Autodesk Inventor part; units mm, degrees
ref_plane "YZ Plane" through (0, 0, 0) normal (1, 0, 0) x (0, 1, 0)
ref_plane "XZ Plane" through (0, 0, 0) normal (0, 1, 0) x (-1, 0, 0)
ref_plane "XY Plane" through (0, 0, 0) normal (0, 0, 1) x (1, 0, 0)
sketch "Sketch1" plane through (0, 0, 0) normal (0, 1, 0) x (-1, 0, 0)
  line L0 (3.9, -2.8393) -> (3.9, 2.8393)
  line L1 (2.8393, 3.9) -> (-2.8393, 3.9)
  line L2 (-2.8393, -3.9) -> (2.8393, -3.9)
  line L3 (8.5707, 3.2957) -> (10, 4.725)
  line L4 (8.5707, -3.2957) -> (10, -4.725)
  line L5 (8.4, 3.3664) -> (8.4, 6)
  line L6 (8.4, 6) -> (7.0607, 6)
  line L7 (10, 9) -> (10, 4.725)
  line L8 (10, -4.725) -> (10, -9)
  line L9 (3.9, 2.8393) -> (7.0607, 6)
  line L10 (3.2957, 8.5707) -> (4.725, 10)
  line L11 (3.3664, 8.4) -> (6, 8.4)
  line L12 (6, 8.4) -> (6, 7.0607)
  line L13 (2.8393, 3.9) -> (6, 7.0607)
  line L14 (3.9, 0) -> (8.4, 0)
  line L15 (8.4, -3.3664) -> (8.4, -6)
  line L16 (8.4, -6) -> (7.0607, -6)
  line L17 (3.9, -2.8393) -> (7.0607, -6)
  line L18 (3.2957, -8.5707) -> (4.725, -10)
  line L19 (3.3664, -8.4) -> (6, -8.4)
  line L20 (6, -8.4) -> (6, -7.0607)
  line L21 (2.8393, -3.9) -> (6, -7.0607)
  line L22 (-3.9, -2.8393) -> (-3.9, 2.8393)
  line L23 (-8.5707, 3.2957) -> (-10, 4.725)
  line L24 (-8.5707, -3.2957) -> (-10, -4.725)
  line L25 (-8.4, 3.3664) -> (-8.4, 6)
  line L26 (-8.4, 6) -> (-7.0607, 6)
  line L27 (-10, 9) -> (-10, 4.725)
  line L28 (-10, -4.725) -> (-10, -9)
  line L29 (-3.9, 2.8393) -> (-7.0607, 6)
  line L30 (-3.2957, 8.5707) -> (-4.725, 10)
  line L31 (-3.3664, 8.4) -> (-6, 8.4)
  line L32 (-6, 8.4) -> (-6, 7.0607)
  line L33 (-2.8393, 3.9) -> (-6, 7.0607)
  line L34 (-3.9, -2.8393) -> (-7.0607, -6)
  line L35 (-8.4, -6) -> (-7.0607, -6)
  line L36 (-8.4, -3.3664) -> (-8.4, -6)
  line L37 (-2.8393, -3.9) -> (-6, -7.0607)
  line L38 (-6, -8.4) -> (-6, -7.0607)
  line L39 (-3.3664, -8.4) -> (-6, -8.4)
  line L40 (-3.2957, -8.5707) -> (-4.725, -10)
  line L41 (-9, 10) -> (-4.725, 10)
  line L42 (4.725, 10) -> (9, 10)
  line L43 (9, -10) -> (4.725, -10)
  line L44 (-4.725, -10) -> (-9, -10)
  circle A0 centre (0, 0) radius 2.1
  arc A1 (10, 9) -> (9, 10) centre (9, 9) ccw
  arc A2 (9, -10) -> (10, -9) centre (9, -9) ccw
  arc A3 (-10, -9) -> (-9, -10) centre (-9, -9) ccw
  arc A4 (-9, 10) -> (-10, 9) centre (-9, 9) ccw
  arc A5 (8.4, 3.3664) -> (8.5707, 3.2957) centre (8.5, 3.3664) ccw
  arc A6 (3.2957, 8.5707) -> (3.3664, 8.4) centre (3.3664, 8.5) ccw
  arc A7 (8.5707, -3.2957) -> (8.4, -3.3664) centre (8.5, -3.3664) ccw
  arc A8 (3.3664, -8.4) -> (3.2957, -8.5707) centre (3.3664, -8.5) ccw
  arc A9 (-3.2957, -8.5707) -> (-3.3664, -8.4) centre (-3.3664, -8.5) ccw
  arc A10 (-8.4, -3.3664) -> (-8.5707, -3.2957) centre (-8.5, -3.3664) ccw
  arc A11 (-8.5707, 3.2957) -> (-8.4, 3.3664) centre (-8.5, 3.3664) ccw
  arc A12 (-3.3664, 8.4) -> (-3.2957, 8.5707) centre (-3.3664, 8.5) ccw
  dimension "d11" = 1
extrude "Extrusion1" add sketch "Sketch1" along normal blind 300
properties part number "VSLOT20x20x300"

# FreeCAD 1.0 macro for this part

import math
import FreeCAD as App
import Part
import Sketcher
Q = App.Units.Quantity

doc = App.newDocument("Part")
params = doc.addObject("Spreadsheet::Sheet", "Params")
for row, (alias, value) in enumerate([
    ("sketch1_radius", "1 mm"),
    ("sketch1_diameter", "4.2 mm"),
    ("sketch1_radius2", "0.1 mm"),
    ("sketch1_length", "4.47 mm"),
    ("pad1_length", "300 mm"),
], start=1):
    params.set(f"A{row}", alias)
    params.set(f"B{row}", "=" + value)
    params.setAlias(f"B{row}", alias)

body = doc.addObject("PartDesign::Body", "Body")

# Sketch on XZ plane
sketch1 = body.newObject("Sketcher::SketchObject", "Sketch")
sketch1.AttachmentSupport = (doc.getObject("XZ_Plane"), [""])
sketch1.MapMode = "FlatFace"
sketch1.addGeometry(Part.LineSegment(App.Vector(-7.0607, -6, 0), App.Vector(-3.9, -2.8393, 0)), False)
sketch1.addGeometry(Part.LineSegment(App.Vector(-3.9, -2.8393, 0), App.Vector(-3.9, 2.8393, 0)), False)
sketch1.addGeometry(Part.LineSegment(App.Vector(-3.9, 2.8393, 0), App.Vector(-7.0607, 6, 0)), False)
sketch1.addGeometry(Part.LineSegment(App.Vector(-7.0607, 6, 0), App.Vector(-8.4, 6, 0)), False)
sketch1.addGeometry(Part.LineSegment(App.Vector(-8.4, 6, 0), App.Vector(-8.4, 3.3664, 0)), False)
sketch1.addGeometry(Part.ArcOfCircle(Part.Circle(App.Vector(-8.5, 3.3664, 0), App.Vector(0, 0, 1), 0.1), math.radians(-135), math.radians(0)), False)
sketch1.addGeometry(Part.LineSegment(App.Vector(-8.5707, 3.2957, 0), App.Vector(-10, 4.725, 0)), False)
sketch1.addGeometry(Part.LineSegment(App.Vector(-10, 4.725, 0), App.Vector(-10, 9, 0)), False)
sketch1.addGeometry(Part.ArcOfCircle(Part.Circle(App.Vector(-9, 9, 0), App.Vector(0, 0, 1), 1), math.radians(90), math.radians(180)), False)
sketch1.addGeometry(Part.LineSegment(App.Vector(-9, 10, 0), App.Vector(-4.725, 10, 0)), False)
sketch1.addGeometry(Part.LineSegment(App.Vector(-4.725, 10, 0), App.Vector(-3.2957, 8.5707, 0)), False)
sketch1.addGeometry(Part.ArcOfCircle(Part.Circle(App.Vector(-3.3664, 8.5, 0), App.Vector(0, 0, 1), 0.099985), math.radians(-90), math.radians(45)), False)
sketch1.addGeometry(Part.LineSegment(App.Vector(-3.3664, 8.4, 0), App.Vector(-6, 8.4, 0)), False)
sketch1.addGeometry(Part.LineSegment(App.Vector(-6, 8.4, 0), App.Vector(-6, 7.0607, 0)), False)
sketch1.addGeometry(Part.LineSegment(App.Vector(-6, 7.0607, 0), App.Vector(-2.8393, 3.9, 0)), False)
sketch1.addGeometry(Part.LineSegment(App.Vector(-2.8393, 3.9, 0), App.Vector(2.8393, 3.9, 0)), False)
sketch1.addGeometry(Part.LineSegment(App.Vector(2.8393, 3.9, 0), App.Vector(6, 7.0607, 0)), False)
sketch1.addGeometry(Part.LineSegment(App.Vector(6, 7.0607, 0), App.Vector(6, 8.4, 0)), False)
sketch1.addGeometry(Part.LineSegment(App.Vector(6, 8.4, 0), App.Vector(3.3664, 8.4, 0)), False)
sketch1.addGeometry(Part.ArcOfCircle(Part.Circle(App.Vector(3.3664, 8.5, 0), App.Vector(0, 0, 1), 0.1), math.radians(135), math.radians(270)), False)
sketch1.addGeometry(Part.LineSegment(App.Vector(3.2957, 8.5707, 0), App.Vector(4.725, 10, 0)), False)
sketch1.addGeometry(Part.LineSegment(App.Vector(4.725, 10, 0), App.Vector(9, 10, 0)), False)
sketch1.addGeometry(Part.ArcOfCircle(Part.Circle(App.Vector(9, 9, 0), App.Vector(0, 0, 1), 1), math.radians(0), math.radians(90)), False)
sketch1.addGeometry(Part.LineSegment(App.Vector(10, 9, 0), App.Vector(10, 4.725, 0)), False)
sketch1.addGeometry(Part.LineSegment(App.Vector(10, 4.725, 0), App.Vector(8.5707, 3.2957, 0)), False)
sketch1.addGeometry(Part.ArcOfCircle(Part.Circle(App.Vector(8.5, 3.3664, 0), App.Vector(0, 0, 1), 0.099985), math.radians(180), math.radians(315)), False)
sketch1.addGeometry(Part.LineSegment(App.Vector(8.4, 3.3664, 0), App.Vector(8.4, 6, 0)), False)
sketch1.addGeometry(Part.LineSegment(App.Vector(8.4, 6, 0), App.Vector(7.0607, 6, 0)), False)
sketch1.addGeometry(Part.LineSegment(App.Vector(7.0607, 6, 0), App.Vector(3.9, 2.8393, 0)), False)
sketch1.addGeometry(Part.LineSegment(App.Vector(3.9, 2.8393, 0), App.Vector(3.9, -2.8393, 0)), False)
sketch1.addGeometry(Part.LineSegment(App.Vector(3.9, -2.8393, 0), App.Vector(7.0607, -6, 0)), False)
sketch1.addGeometry(Part.LineSegment(App.Vector(7.0607, -6, 0), App.Vector(8.4, -6, 0)), False)
sketch1.addGeometry(Part.LineSegment(App.Vector(8.4, -6, 0), App.Vector(8.4, -3.3664, 0)), False)
sketch1.addGeometry(Part.ArcOfCircle(Part.Circle(App.Vector(8.5, -3.3664, 0), App.Vector(0, 0, 1), 0.1), math.radians(45), math.radians(180)), False)
sketch1.addGeometry(Part.LineSegment(App.Vector(8.5707, -3.2957, 0), App.Vector(10, -4.725, 0)), False)
sketch1.addGeometry(Part.LineSegment(App.Vector(10, -4.725, 0), App.Vector(10, -9, 0)), False)
sketch1.addGeometry(Part.ArcOfCircle(Part.Circle(App.Vector(9, -9, 0), App.Vector(0, 0, 1), 1), math.radians(-90), math.radians(0)), False)
sketch1.addGeometry(Part.LineSegment(App.Vector(9, -10, 0), App.Vector(4.725, -10, 0)), False)
sketch1.addGeometry(Part.LineSegment(App.Vector(4.725, -10, 0), App.Vector(3.2957, -8.5707, 0)), False)
sketch1.addGeometry(Part.ArcOfCircle(Part.Circle(App.Vector(3.3664, -8.5, 0), App.Vector(0, 0, 1), 0.099985), math.radians(90), math.radians(225)), False)
sketch1.addGeometry(Part.LineSegment(App.Vector(3.3664, -8.4, 0), App.Vector(6, -8.4, 0)), False)
sketch1.addGeometry(Part.LineSegment(App.Vector(6, -8.4, 0), App.Vector(6, -7.0607, 0)), False)
sketch1.addGeometry(Part.LineSegment(App.Vector(6, -7.0607, 0), App.Vector(2.8393, -3.9, 0)), False)
sketch1.addGeometry(Part.LineSegment(App.Vector(2.8393, -3.9, 0), App.Vector(-2.8393, -3.9, 0)), False)
sketch1.addGeometry(Part.LineSegment(App.Vector(-2.8393, -3.9, 0), App.Vector(-6, -7.0607, 0)), False)
sketch1.addGeometry(Part.LineSegment(App.Vector(-6, -7.0607, 0), App.Vector(-6, -8.4, 0)), False)
sketch1.addGeometry(Part.LineSegment(App.Vector(-6, -8.4, 0), App.Vector(-3.3664, -8.4, 0)), False)
sketch1.addGeometry(Part.ArcOfCircle(Part.Circle(App.Vector(-3.3664, -8.5, 0), App.Vector(0, 0, 1), 0.1), math.radians(-45), math.radians(90)), False)
sketch1.addGeometry(Part.LineSegment(App.Vector(-3.2957, -8.5707, 0), App.Vector(-4.725, -10, 0)), False)
sketch1.addGeometry(Part.LineSegment(App.Vector(-4.725, -10, 0), App.Vector(-9, -10, 0)), False)
sketch1.addGeometry(Part.ArcOfCircle(Part.Circle(App.Vector(-9, -9, 0), App.Vector(0, 0, 1), 1), math.radians(180), math.radians(270)), False)
sketch1.addGeometry(Part.LineSegment(App.Vector(-10, -9, 0), App.Vector(-10, -4.725, 0)), False)
sketch1.addGeometry(Part.LineSegment(App.Vector(-10, -4.725, 0), App.Vector(-8.5707, -3.2957, 0)), False)
sketch1.addGeometry(Part.ArcOfCircle(Part.Circle(App.Vector(-8.5, -3.3664, 0), App.Vector(0, 0, 1), 0.099985), math.radians(0), math.radians(135)), False)
sketch1.addGeometry(Part.LineSegment(App.Vector(-8.4, -3.3664, 0), App.Vector(-8.4, -6, 0)), False)
sketch1.addGeometry(Part.LineSegment(App.Vector(-8.4, -6, 0), App.Vector(-7.0607, -6, 0)), False)
sketch1.addGeometry(Part.Circle(App.Vector(0, 0, 0), App.Vector(0, 0, 1), 2.1), False)
sketch1.addConstraint(Sketcher.Constraint("Coincident", 0, 2, 1, 1))
sketch1.addConstraint(Sketcher.Constraint("Coincident", 1, 2, 2, 1))
sketch1.addConstraint(Sketcher.Constraint("Coincident", 2, 2, 3, 1))
sketch1.addConstraint(Sketcher.Constraint("Coincident", 3, 2, 4, 1))
sketch1.addConstraint(Sketcher.Constraint("Tangent", 4, 2, 5, 2))
sketch1.addConstraint(Sketcher.Constraint("Tangent", 5, 1, 6, 1))
sketch1.addConstraint(Sketcher.Constraint("Coincident", 6, 2, 7, 1))
sketch1.addConstraint(Sketcher.Constraint("Tangent", 7, 2, 8, 2))
sketch1.addConstraint(Sketcher.Constraint("Tangent", 8, 1, 9, 1))
sketch1.addConstraint(Sketcher.Constraint("Coincident", 9, 2, 10, 1))
sketch1.addConstraint(Sketcher.Constraint("Tangent", 10, 2, 11, 2))
sketch1.addConstraint(Sketcher.Constraint("Tangent", 11, 1, 12, 1))
sketch1.addConstraint(Sketcher.Constraint("Coincident", 12, 2, 13, 1))
sketch1.addConstraint(Sketcher.Constraint("Coincident", 13, 2, 14, 1))
sketch1.addConstraint(Sketcher.Constraint("Coincident", 14, 2, 15, 1))
sketch1.addConstraint(Sketcher.Constraint("Coincident", 15, 2, 16, 1))
sketch1.addConstraint(Sketcher.Constraint("Coincident", 16, 2, 17, 1))
sketch1.addConstraint(Sketcher.Constraint("Coincident", 17, 2, 18, 1))
sketch1.addConstraint(Sketcher.Constraint("Tangent", 18, 2, 19, 2))
sketch1.addConstraint(Sketcher.Constraint("Tangent", 19, 1, 20, 1))
sketch1.addConstraint(Sketcher.Constraint("Coincident", 20, 2, 21, 1))
sketch1.addConstraint(Sketcher.Constraint("Tangent", 21, 2, 22, 2))
sketch1.addConstraint(Sketcher.Constraint("Tangent", 22, 1, 23, 1))
sketch1.addConstraint(Sketcher.Constraint("Coincident", 23, 2, 24, 1))
sketch1.addConstraint(Sketcher.Constraint("Tangent", 24, 2, 25, 2))
sketch1.addConstraint(Sketcher.Constraint("Tangent", 25, 1, 26, 1))
sketch1.addConstraint(Sketcher.Constraint("Coincident", 26, 2, 27, 1))
sketch1.addConstraint(Sketcher.Constraint("Coincident", 27, 2, 28, 1))
sketch1.addConstraint(Sketcher.Constraint("Coincident", 28, 2, 29, 1))
sketch1.addConstraint(Sketcher.Constraint("Coincident", 29, 2, 30, 1))
sketch1.addConstraint(Sketcher.Constraint("Coincident", 30, 2, 31, 1))
sketch1.addConstraint(Sketcher.Constraint("Coincident", 31, 2, 32, 1))
sketch1.addConstraint(Sketcher.Constraint("Tangent", 32, 2, 33, 2))
sketch1.addConstraint(Sketcher.Constraint("Tangent", 33, 1, 34, 1))
sketch1.addConstraint(Sketcher.Constraint("Coincident", 34, 2, 35, 1))
sketch1.addConstraint(Sketcher.Constraint("Tangent", 35, 2, 36, 2))
sketch1.addConstraint(Sketcher.Constraint("Tangent", 36, 1, 37, 1))
sketch1.addConstraint(Sketcher.Constraint("Coincident", 37, 2, 38, 1))
sketch1.addConstraint(Sketcher.Constraint("Tangent", 38, 2, 39, 2))
sketch1.addConstraint(Sketcher.Constraint("Tangent", 39, 1, 40, 1))
sketch1.addConstraint(Sketcher.Constraint("Coincident", 40, 2, 41, 1))
sketch1.addConstraint(Sketcher.Constraint("Coincident", 41, 2, 42, 1))
sketch1.addConstraint(Sketcher.Constraint("Coincident", 42, 2, 43, 1))
sketch1.addConstraint(Sketcher.Constraint("Coincident", 43, 2, 44, 1))
sketch1.addConstraint(Sketcher.Constraint("Coincident", 44, 2, 45, 1))
sketch1.addConstraint(Sketcher.Constraint("Coincident", 45, 2, 46, 1))
sketch1.addConstraint(Sketcher.Constraint("Tangent", 46, 2, 47, 2))
sketch1.addConstraint(Sketcher.Constraint("Tangent", 47, 1, 48, 1))
sketch1.addConstraint(Sketcher.Constraint("Coincident", 48, 2, 49, 1))
sketch1.addConstraint(Sketcher.Constraint("Tangent", 49, 2, 50, 2))
sketch1.addConstraint(Sketcher.Constraint("Tangent", 50, 1, 51, 1))
sketch1.addConstraint(Sketcher.Constraint("Coincident", 51, 2, 52, 1))
sketch1.addConstraint(Sketcher.Constraint("Tangent", 52, 2, 53, 2))
sketch1.addConstraint(Sketcher.Constraint("Tangent", 53, 1, 54, 1))
sketch1.addConstraint(Sketcher.Constraint("Coincident", 54, 2, 55, 1))
sketch1.addConstraint(Sketcher.Constraint("Coincident", 55, 2, 0, 1))
sketch1.addConstraint(Sketcher.Constraint("Vertical", 1))
sketch1.addConstraint(Sketcher.Constraint("Horizontal", 3))
sketch1.addConstraint(Sketcher.Constraint("Vertical", 4))
sketch1.addConstraint(Sketcher.Constraint("Vertical", 7))
sketch1.addConstraint(Sketcher.Constraint("Horizontal", 9))
sketch1.addConstraint(Sketcher.Constraint("Horizontal", 12))
sketch1.addConstraint(Sketcher.Constraint("Vertical", 13))
sketch1.addConstraint(Sketcher.Constraint("Horizontal", 15))
sketch1.addConstraint(Sketcher.Constraint("Vertical", 17))
sketch1.addConstraint(Sketcher.Constraint("Horizontal", 18))
sketch1.addConstraint(Sketcher.Constraint("Horizontal", 21))
sketch1.addConstraint(Sketcher.Constraint("Vertical", 23))
sketch1.addConstraint(Sketcher.Constraint("Vertical", 26))
sketch1.addConstraint(Sketcher.Constraint("Horizontal", 27))
sketch1.addConstraint(Sketcher.Constraint("Vertical", 29))
sketch1.addConstraint(Sketcher.Constraint("Horizontal", 31))
sketch1.addConstraint(Sketcher.Constraint("Vertical", 32))
sketch1.addConstraint(Sketcher.Constraint("Vertical", 35))
sketch1.addConstraint(Sketcher.Constraint("Horizontal", 37))
sketch1.addConstraint(Sketcher.Constraint("Horizontal", 40))
sketch1.addConstraint(Sketcher.Constraint("Vertical", 41))
sketch1.addConstraint(Sketcher.Constraint("Horizontal", 43))
sketch1.addConstraint(Sketcher.Constraint("Vertical", 45))
sketch1.addConstraint(Sketcher.Constraint("Horizontal", 46))
sketch1.addConstraint(Sketcher.Constraint("Horizontal", 49))
sketch1.addConstraint(Sketcher.Constraint("Vertical", 51))
sketch1.addConstraint(Sketcher.Constraint("Vertical", 54))
sketch1.addConstraint(Sketcher.Constraint("Horizontal", 55))
sketch1.addConstraint(Sketcher.Constraint("Coincident", 56, 3, -1, 1))
sketch1.addConstraint(Sketcher.Constraint("Equal", 5, 11))
sketch1.addConstraint(Sketcher.Constraint("Equal", 11, 19))
sketch1.addConstraint(Sketcher.Constraint("Equal", 8, 22))
sketch1.addConstraint(Sketcher.Constraint("Equal", 19, 25))
sketch1.addConstraint(Sketcher.Constraint("Equal", 25, 33))
sketch1.addConstraint(Sketcher.Constraint("Equal", 22, 36))
sketch1.addConstraint(Sketcher.Constraint("Equal", 33, 39))
sketch1.addConstraint(Sketcher.Constraint("Equal", 39, 47))
sketch1.addConstraint(Sketcher.Constraint("Equal", 36, 50))
sketch1.addConstraint(Sketcher.Constraint("Equal", 47, 53))
sketch1.addConstraint(Sketcher.Constraint("Symmetric", 5, 3, 33, 3, -1, 1))
sketch1.addConstraint(Sketcher.Constraint("Symmetric", 8, 3, 36, 3, -1, 1))
sketch1.addConstraint(Sketcher.Constraint("Symmetric", 11, 3, 39, 3, -1, 1))
sketch1.addConstraint(Sketcher.Constraint("Symmetric", 19, 3, 47, 3, -1, 1))
sketch1.addConstraint(Sketcher.Constraint("Symmetric", 22, 3, 50, 3, -1, 1))
sketch1.addConstraint(Sketcher.Constraint("Symmetric", 25, 3, 53, 3, -1, 1))
sketch1.addConstraint(Sketcher.Constraint("Symmetric", 0, 2, 28, 2, -1, 1))
sketch1.addConstraint(Sketcher.Constraint("Symmetric", 2, 2, 30, 2, -1, 1))
sketch1.addConstraint(Sketcher.Constraint("Symmetric", 13, 2, 41, 2, -1, 1))
sketch1.addConstraint(Sketcher.Constraint("Symmetric", 14, 2, 42, 2, -1, 1))
sketch1.addConstraint(Sketcher.Constraint("Symmetric", 16, 2, 44, 2, -1, 1))
sketch1.addConstraint(Sketcher.Constraint("Symmetric", 27, 2, 55, 2, -1, 1))
sketch1.addConstraint(Sketcher.Constraint("Symmetric", 11, 3, 19, 3, -2))
sketch1.addConstraint(Sketcher.Constraint("Symmetric", 8, 3, 22, 3, -2))
sketch1.addConstraint(Sketcher.Constraint("Symmetric", 5, 3, 25, 3, -2))
sketch1.addConstraint(Sketcher.Constraint("Symmetric", 13, 2, 16, 2, -2))
sketch1.addConstraint(Sketcher.Constraint("Symmetric", 2, 2, 27, 2, -2))
sketch1.addConstraint(Sketcher.Constraint("Perpendicular", 0, 2))
sketch1.addConstraint(Sketcher.Constraint("Parallel", 2, 6))
sketch1.addConstraint(Sketcher.Constraint("Parallel", 6, 10))
sketch1.addConstraint(Sketcher.Constraint("Parallel", 10, 14))
sketch1.addConstraint(Sketcher.Constraint("Perpendicular", 14, 16))
sketch1.addConstraint(Sketcher.Constraint("Parallel", 16, 20))
sketch1.addConstraint(Sketcher.Constraint("Parallel", 20, 24))
sketch1.addConstraint(Sketcher.Constraint("Perpendicular", 28, 30))
sketch1.addConstraint(Sketcher.Constraint("Parallel", 30, 34))
sketch1.addConstraint(Sketcher.Constraint("Parallel", 34, 38))
sketch1.addConstraint(Sketcher.Constraint("Perpendicular", 42, 44))
sketch1.addConstraint(Sketcher.Constraint("Parallel", 44, 48))
sketch1.addConstraint(Sketcher.Constraint("Parallel", 48, 52))
sketch1.addConstraint(Sketcher.Constraint("Horizontal", 10, 2, 19, 1))
sketch1.addConstraint(Sketcher.Constraint("Equal", 43, 1))
sketch1.addConstraint(Sketcher.Constraint("Equal", 46, 4))
sketch1.addConstraint(Sketcher.Constraint("Equal", 49, 7))
sketch1.addConstraint(Sketcher.Constraint("Equal", 55, 13))
sketch1.addConstraint(Sketcher.Constraint("Equal", 6, 10))
sketch1.addConstraint(Sketcher.Constraint("Equal", 2, 14))
sketch1.addConstraint(Sketcher.Constraint("Radius", 8, Q("1 mm")))
sketch1.addConstraint(Sketcher.Constraint("Diameter", 56, Q("4.2 mm")))
sketch1.addConstraint(Sketcher.Constraint("Radius", 5, Q("0.1 mm")))
sketch1.addConstraint(Sketcher.Constraint("DistanceX", 8, 3, -1, 1, Q("9 mm")))
sketch1.addConstraint(Sketcher.Constraint("DistanceY", -1, 1, 2, 2, Q("6 mm")))
sketch1.addConstraint(Sketcher.Constraint("DistanceX", 5, 3, -1, 1, Q("8.5 mm")))
sketch1.addConstraint(Sketcher.Constraint("DistanceX", 0, 2, -1, 1, Q("3.9 mm")))
sketch1.addConstraint(Sketcher.Constraint("Distance", 0, Q("4.47 mm")))
sketch1.addConstraint(Sketcher.Constraint("DistanceX", 9, 1, 9, 2, Q("4.275 mm")))
sketch1.setExpression("Constraints[132]", "Params.sketch1_radius")
sketch1.setExpression("Constraints[133]", "Params.sketch1_diameter")
sketch1.setExpression("Constraints[134]", "Params.sketch1_radius2")
sketch1.setExpression("Constraints[139]", "Params.sketch1_length")
pad1 = body.newObject("PartDesign::Pad", "Pad")
pad1.Profile = sketch1
pad1.setExpression("Length", "Params.pad1_length")
pad1.Reversed = True

doc.recompute()
